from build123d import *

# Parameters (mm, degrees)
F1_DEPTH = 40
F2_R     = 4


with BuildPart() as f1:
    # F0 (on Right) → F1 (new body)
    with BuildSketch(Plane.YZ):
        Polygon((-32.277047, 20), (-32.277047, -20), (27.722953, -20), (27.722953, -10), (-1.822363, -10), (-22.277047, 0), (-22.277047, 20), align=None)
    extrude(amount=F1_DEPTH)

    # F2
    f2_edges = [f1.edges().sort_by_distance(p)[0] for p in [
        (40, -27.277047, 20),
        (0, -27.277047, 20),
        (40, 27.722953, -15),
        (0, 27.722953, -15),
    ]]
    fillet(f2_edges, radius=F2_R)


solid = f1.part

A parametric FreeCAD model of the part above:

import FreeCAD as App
import Part
import Sketcher
Q = App.Units.Quantity


def edges_at(feature, points):
    """Names of the edges that pass closest to the given points."""
    edges = feature.Shape.Edges
    near = lambda p: min(range(len(edges)), key=lambda i: edges[i].distToShape(Part.Vertex(*p))[0])
    return sorted({f"Edge{near(p) + 1}" for p in points})


def add_polygon(sketch, points):
    """Adds a closed chain of lines whose ends are joined by coincident constraints."""
    first, n = sketch.GeometryCount, len(points)
    for a, b in zip(points, points[1:] + points[:1]):
        sketch.addGeometry(Part.LineSegment(App.Vector(*a, 0), App.Vector(*b, 0)), False)
    for i in range(n):
        sketch.addConstraint(Sketcher.Constraint("Coincident", first + i, 2, first + (i + 1) % n, 1))

doc = App.newDocument("Part")
body = doc.addObject("PartDesign::Body", "Body")

# Sketch on YZ plane
sketch1 = body.newObject("Sketcher::SketchObject", "Sketch")
sketch1.AttachmentSupport = (doc.getObject("YZ_Plane"), [""])
sketch1.MapMode = "FlatFace"
add_polygon(sketch1, [(-32.277047, 20), (-32.277047, -20), (27.722953, -20), (27.722953, -10), (-1.822363, -10), (-22.277047, 0), (-22.277047, 20)])  # lines 0-6
sketch1.addConstraint(Sketcher.Constraint("Vertical", 0))
sketch1.addConstraint(Sketcher.Constraint("Horizontal", 1))
sketch1.addConstraint(Sketcher.Constraint("Vertical", 2))
sketch1.addConstraint(Sketcher.Constraint("Horizontal", 3))
sketch1.addConstraint(Sketcher.Constraint("Vertical", 5))
sketch1.addConstraint(Sketcher.Constraint("Horizontal", 6))
sketch1.addConstraint(Sketcher.Constraint("PointOnObject", 4, 2, -1))
sketch1.addConstraint(Sketcher.Constraint("Equal", 6, 2))
sketch1.addConstraint(Sketcher.Constraint("DistanceX", 1, 1, 1, 2, Q("60 mm")))
sketch1.addConstraint(Sketcher.Constraint("DistanceX", 6, 2, 6, 1, Q("10 mm")))
sketch1.addConstraint(Sketcher.Constraint("DistanceY", 0, 2, 0, 1, Q("40 mm")))
sketch1.addConstraint(Sketcher.Constraint("DistanceY", 5, 1, 5, 2, Q("20 mm")))
sketch1.addConstraint(Sketcher.Constraint("Distance", 4, Q("22.76827 mm")))
sketch1.addConstraint(Sketcher.Constraint("DistanceX", 0, 2, -1, 1, Q("32.277047 mm")))
pad1 = body.newObject("PartDesign::Pad", "Pad")
pad1.Profile = sketch1
pad1.Length = 40
doc.recompute()

fillet = body.newObject("PartDesign::Fillet", "Fillet")
fillet.Base = (pad1, edges_at(pad1, [
    (40, -27.277, 20),
    (0, -27.277, 20),
    (40, 27.723, -15),
    (0, 27.723, -15),
]))
fillet.Radius = 4

doc.recompute()
